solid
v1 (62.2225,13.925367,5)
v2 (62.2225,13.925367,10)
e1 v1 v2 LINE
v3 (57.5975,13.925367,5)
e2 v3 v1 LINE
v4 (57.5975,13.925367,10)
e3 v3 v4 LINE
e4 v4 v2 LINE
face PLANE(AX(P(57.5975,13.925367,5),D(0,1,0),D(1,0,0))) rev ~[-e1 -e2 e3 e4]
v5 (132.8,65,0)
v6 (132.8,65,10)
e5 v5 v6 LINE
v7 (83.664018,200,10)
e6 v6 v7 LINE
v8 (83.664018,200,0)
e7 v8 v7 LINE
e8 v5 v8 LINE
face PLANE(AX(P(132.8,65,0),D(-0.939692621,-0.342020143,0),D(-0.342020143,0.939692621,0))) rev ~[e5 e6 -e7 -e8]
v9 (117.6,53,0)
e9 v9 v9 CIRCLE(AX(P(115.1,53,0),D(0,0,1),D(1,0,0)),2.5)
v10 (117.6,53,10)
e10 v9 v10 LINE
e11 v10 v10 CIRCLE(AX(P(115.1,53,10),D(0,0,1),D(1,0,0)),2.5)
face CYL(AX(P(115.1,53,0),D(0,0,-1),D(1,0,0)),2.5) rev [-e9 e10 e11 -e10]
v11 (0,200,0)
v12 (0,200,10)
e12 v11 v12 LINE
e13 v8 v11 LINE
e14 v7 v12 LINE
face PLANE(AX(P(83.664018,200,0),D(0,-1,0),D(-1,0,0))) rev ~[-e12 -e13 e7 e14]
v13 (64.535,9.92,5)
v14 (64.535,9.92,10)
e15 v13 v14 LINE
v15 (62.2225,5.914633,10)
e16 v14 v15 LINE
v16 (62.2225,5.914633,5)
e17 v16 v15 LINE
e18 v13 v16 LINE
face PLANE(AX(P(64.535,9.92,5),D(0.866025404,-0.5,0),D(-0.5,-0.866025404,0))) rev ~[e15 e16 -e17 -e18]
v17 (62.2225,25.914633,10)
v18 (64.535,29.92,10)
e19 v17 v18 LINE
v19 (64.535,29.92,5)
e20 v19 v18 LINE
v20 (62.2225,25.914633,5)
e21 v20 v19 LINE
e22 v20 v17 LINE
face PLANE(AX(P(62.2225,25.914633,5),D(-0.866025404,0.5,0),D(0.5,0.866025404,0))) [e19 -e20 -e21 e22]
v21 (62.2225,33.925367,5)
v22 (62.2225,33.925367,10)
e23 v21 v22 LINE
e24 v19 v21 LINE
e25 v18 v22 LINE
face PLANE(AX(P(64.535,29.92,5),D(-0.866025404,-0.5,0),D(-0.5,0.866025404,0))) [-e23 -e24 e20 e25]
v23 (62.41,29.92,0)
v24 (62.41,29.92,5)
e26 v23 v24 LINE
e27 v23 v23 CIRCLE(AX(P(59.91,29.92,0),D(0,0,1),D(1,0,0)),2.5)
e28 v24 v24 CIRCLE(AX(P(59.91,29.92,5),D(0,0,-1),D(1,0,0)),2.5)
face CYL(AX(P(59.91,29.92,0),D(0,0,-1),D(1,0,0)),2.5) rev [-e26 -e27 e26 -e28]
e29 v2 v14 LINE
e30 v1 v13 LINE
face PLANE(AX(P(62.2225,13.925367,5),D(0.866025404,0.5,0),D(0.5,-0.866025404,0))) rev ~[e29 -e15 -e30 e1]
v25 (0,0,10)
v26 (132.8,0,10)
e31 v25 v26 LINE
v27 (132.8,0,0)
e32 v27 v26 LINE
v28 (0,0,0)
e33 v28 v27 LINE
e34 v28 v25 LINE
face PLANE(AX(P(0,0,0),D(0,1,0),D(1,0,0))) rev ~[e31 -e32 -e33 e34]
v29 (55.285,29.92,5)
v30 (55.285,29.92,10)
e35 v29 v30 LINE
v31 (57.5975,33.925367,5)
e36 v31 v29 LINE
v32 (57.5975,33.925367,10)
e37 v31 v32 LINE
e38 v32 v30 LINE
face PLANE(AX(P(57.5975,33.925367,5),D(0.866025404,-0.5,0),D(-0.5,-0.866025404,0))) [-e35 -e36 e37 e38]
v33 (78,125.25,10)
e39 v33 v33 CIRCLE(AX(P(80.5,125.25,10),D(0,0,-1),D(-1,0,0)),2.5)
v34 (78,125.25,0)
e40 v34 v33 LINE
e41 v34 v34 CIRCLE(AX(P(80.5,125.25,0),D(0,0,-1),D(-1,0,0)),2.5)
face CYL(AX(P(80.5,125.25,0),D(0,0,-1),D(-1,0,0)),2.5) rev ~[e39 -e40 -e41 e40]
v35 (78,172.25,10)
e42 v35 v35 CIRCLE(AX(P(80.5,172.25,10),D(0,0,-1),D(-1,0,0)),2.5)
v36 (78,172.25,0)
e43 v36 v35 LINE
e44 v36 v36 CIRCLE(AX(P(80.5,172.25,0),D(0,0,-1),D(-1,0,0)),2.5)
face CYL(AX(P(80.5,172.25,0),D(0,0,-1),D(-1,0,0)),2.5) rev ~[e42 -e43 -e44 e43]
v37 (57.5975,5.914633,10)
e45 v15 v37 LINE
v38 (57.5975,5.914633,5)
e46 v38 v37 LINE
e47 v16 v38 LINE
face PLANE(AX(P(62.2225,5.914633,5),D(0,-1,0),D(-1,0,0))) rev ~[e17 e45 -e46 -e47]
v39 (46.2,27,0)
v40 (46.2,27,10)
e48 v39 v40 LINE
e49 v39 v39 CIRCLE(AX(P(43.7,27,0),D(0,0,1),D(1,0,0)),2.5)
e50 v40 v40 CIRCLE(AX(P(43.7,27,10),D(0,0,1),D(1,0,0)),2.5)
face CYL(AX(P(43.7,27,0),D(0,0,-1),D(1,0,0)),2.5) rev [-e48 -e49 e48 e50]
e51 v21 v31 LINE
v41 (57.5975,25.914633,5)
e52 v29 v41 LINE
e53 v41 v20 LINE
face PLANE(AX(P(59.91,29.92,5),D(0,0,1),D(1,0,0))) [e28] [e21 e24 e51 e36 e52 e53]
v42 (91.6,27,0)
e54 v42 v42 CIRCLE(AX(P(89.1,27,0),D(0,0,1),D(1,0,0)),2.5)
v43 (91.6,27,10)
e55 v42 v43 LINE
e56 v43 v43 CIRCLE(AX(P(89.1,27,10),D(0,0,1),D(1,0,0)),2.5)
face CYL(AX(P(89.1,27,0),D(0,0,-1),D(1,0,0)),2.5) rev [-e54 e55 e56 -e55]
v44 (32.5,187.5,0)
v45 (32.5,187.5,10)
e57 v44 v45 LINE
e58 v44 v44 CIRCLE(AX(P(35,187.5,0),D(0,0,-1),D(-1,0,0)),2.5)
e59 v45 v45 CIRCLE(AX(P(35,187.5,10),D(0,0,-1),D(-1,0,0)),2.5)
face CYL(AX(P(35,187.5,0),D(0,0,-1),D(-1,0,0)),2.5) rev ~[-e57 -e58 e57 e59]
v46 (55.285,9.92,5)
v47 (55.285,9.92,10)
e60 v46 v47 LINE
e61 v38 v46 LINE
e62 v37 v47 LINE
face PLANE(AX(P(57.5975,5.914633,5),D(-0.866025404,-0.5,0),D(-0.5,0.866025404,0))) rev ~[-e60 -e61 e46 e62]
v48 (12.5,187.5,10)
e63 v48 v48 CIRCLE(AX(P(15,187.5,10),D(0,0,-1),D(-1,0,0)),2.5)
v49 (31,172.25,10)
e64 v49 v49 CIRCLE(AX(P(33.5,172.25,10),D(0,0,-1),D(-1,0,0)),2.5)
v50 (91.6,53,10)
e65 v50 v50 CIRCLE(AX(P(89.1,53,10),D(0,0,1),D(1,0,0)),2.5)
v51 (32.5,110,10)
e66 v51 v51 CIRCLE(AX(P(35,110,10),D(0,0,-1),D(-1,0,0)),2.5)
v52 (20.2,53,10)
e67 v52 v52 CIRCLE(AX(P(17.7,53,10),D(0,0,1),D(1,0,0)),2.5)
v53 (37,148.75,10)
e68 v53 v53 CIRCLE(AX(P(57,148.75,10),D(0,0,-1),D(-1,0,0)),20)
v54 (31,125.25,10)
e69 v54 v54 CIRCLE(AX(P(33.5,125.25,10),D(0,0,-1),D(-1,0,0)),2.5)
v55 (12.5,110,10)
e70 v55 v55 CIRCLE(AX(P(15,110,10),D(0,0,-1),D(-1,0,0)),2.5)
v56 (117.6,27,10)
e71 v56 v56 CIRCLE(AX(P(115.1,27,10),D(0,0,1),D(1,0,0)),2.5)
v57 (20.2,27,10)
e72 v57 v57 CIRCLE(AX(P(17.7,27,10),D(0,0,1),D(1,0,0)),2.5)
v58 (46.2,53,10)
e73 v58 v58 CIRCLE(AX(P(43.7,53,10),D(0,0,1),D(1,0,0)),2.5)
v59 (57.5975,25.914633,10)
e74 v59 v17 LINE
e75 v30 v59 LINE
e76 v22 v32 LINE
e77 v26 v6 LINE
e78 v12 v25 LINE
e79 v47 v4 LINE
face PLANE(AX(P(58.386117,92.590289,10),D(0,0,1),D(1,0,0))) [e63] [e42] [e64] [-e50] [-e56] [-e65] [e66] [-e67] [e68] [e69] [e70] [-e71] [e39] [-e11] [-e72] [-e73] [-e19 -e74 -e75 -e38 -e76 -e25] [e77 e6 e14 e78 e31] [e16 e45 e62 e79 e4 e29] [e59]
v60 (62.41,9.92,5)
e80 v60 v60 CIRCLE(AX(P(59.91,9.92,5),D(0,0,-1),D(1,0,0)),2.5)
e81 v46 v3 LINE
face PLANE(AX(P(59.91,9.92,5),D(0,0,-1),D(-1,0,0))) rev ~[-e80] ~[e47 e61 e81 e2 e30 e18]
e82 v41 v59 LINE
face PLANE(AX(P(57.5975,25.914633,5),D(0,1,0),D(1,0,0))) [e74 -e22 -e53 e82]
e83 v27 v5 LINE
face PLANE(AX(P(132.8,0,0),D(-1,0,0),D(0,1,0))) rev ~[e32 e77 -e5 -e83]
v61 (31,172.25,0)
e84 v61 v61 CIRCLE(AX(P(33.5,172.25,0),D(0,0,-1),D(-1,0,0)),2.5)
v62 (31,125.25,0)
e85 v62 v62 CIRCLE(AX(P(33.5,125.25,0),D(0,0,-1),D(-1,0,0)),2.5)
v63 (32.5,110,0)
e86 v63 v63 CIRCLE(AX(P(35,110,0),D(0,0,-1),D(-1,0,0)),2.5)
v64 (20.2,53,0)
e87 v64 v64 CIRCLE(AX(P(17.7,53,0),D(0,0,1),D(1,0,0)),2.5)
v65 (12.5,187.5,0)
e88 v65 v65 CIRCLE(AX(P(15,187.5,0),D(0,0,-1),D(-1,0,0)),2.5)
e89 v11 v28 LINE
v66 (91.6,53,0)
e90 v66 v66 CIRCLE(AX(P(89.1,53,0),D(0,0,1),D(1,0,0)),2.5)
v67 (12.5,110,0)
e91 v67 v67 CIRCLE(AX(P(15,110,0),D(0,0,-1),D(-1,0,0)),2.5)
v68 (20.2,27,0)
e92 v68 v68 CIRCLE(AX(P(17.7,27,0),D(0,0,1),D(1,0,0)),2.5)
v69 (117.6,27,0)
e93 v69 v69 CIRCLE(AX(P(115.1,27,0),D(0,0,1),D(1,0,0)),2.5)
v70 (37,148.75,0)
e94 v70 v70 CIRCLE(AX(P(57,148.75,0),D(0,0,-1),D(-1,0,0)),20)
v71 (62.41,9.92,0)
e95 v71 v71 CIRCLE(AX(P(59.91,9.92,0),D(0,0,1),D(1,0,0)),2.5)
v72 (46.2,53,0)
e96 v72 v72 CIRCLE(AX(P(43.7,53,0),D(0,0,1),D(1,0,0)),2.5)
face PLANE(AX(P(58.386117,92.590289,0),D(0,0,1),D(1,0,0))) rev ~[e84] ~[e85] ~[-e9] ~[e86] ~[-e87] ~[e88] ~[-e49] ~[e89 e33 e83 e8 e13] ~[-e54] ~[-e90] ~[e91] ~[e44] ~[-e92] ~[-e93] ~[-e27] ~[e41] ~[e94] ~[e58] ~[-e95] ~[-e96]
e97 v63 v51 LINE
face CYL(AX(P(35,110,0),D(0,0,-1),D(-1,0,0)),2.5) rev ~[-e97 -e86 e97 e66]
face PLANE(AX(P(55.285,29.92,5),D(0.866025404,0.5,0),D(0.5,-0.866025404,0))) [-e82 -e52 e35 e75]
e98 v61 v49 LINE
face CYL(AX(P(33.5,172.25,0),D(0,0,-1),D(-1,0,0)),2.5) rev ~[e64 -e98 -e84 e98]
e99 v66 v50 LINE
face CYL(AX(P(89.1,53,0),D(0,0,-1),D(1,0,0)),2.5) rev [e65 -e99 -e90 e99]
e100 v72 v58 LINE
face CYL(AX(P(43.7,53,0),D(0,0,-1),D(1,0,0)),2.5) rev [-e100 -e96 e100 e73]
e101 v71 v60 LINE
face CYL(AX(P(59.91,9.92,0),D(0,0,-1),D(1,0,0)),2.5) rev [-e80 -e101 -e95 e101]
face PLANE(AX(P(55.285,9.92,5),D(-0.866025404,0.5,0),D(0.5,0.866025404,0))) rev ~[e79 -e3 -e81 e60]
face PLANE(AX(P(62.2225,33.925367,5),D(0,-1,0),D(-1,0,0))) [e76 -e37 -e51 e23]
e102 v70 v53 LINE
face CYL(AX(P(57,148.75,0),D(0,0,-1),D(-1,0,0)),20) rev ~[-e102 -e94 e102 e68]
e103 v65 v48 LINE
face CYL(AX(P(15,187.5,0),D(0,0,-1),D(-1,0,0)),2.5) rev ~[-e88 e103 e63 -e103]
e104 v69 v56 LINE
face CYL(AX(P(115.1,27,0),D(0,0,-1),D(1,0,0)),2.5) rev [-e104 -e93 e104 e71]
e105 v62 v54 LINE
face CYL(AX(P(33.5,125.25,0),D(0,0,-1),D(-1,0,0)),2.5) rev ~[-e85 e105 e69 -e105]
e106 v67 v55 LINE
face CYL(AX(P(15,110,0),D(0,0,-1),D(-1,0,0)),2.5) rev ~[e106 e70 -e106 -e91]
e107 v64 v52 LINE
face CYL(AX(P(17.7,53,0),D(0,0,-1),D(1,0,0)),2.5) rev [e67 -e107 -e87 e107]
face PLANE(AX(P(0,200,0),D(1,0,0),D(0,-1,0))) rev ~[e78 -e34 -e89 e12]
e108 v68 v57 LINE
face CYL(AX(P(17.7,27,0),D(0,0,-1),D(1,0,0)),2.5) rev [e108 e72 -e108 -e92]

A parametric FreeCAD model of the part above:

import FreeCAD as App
import Part
import Sketcher
from FreeCAD import Vector
Q = App.Units.Quantity

doc = App.newDocument("Part")
body = doc.addObject("PartDesign::Body", "Body")

sketch1 = body.newObject("Sketcher::SketchObject", "Sketch")
sketch1.AttachmentSupport = (doc.getObject("XY_Plane"), [""])
sketch1.MapMode = "FlatFace"
sketch1.addGeometry([
    Part.LineSegment(Vector(0, 0, 0), Vector(132.8, 0, 0)),
    Part.LineSegment(Vector(132.8, 0, 0), Vector(132.8, 65, 0)),
    Part.LineSegment(Vector(132.8, 65, 0), Vector(83.664018, 200, 0)),
    Part.LineSegment(Vector(83.664018, 200, 0), Vector(0, 200, 0)),
    Part.LineSegment(Vector(0, 200, 0), Vector(0, 0, 0)),
    Part.Circle(Vector(59.91, 9.92, 0), Vector(0, 0, 1), 2.5),
    Part.Circle(Vector(17.7, 27, 0), Vector(0, 0, 1), 2.5),
    Part.Circle(Vector(43.7, 27, 0), Vector(0, 0, 1), 2.5),
    Part.Circle(Vector(59.91, 29.92, 0), Vector(0, 0, 1), 2.5),
    Part.Circle(Vector(89.1, 27, 0), Vector(0, 0, 1), 2.5),
    Part.Circle(Vector(115.1, 27, 0), Vector(0, 0, 1), 2.5),
    Part.Circle(Vector(17.7, 53, 0), Vector(0, 0, 1), 2.5),
    Part.Circle(Vector(43.7, 53, 0), Vector(0, 0, 1), 2.5),
    Part.Circle(Vector(89.1, 53, 0), Vector(0, 0, 1), 2.5),
    Part.Circle(Vector(115.1, 53, 0), Vector(0, 0, 1), 2.5),
], False)
sketch1.addConstraint([
    Sketcher.Constraint("Coincident", 0, 2, 1, 1),
    Sketcher.Constraint("Coincident", 1, 2, 2, 1),
    Sketcher.Constraint("Coincident", 2, 2, 3, 1),
    Sketcher.Constraint("Coincident", 3, 2, 4, 1),
    Sketcher.Constraint("Coincident", 4, 2, 0, 1),
    Sketcher.Constraint("Horizontal", 0),
    Sketcher.Constraint("Vertical", 1),
    Sketcher.Constraint("Horizontal", 3),
    Sketcher.Constraint("Vertical", 4),
    Sketcher.Constraint("Coincident", 4, 2, -1, 1),
    Sketcher.Constraint("Equal", 5, 6),
    Sketcher.Constraint("Equal", 6, 7),
    Sketcher.Constraint("Equal", 7, 8),
    Sketcher.Constraint("Equal", 8, 9),
    Sketcher.Constraint("Equal", 9, 10),
    Sketcher.Constraint("Equal", 10, 11),
    Sketcher.Constraint("Equal", 11, 12),
    Sketcher.Constraint("Equal", 12, 13),
    Sketcher.Constraint("Equal", 13, 14),
    Sketcher.Constraint("Horizontal", 6, 3, 7, 3),
    Sketcher.Constraint("Horizontal", 7, 3, 9, 3),
    Sketcher.Constraint("Horizontal", 9, 3, 10, 3),
    Sketcher.Constraint("Horizontal", 11, 3, 12, 3),
    Sketcher.Constraint("Horizontal", 12, 3, 13, 3),
    Sketcher.Constraint("Horizontal", 13, 3, 14, 3),
    Sketcher.Constraint("Vertical", 5, 3, 8, 3),
    Sketcher.Constraint("Vertical", 6, 3, 11, 3),
    Sketcher.Constraint("Vertical", 7, 3, 12, 3),
    Sketcher.Constraint("Vertical", 9, 3, 13, 3),
    Sketcher.Constraint("Vertical", 10, 3, 14, 3),
    Sketcher.Constraint("Diameter", 5, 5.0),
    Sketcher.Constraint("DistanceY", 1, 1, 1, 2, 65.0),
    Sketcher.Constraint("DistanceY", 4, 2, 4, 1, 200.0),
    Sketcher.Constraint("Angle", 2, Q("110 deg")),
    Sketcher.Constraint("DistanceX", 0, 1, 0, 2, 132.8),
    Sketcher.Constraint("DistanceY", -1, 1, 6, 3, 27.0),
    Sketcher.Constraint("DistanceY", -1, 1, 11, 3, 53.0),
    Sketcher.Constraint("DistanceX", 6, 3, 7, 3, 26.0),
    Sketcher.Constraint("DistanceY", 5, 3, 8, 3, 20.0),
    Sketcher.Constraint("DistanceX", 9, 3, 10, 3, 26.0),
    Sketcher.Constraint("DistanceX", -1, 1, 6, 3, 17.7),
    Sketcher.Constraint("DistanceX", -1, 1, 9, 3, 89.1),
    Sketcher.Constraint("DistanceX", -1, 1, 5, 3, 59.91),
    Sketcher.Constraint("DistanceY", -1, 1, 5, 3, 9.92),
])
pad1 = body.newObject("PartDesign::Pad", "Pad")
pad1.Profile = sketch1
pad1.Length = 10

sketch2 = body.newObject("Sketcher::SketchObject", "Sketch001")
sketch2.AttachmentSupport = (doc.getObject("XY_Plane"), [""])
sketch2.MapMode = "FlatFace"
sketch2.AttachmentOffset = App.Placement(Vector(0, 0, 5), App.Rotation())
sketch2.addGeometry([
    Part.LineSegment(Vector(64.535, 29.92, 0), Vector(62.2225, 33.925367, 0)),
    Part.LineSegment(Vector(62.2225, 33.925367, 0), Vector(57.5975, 33.925367, 0)),
    Part.LineSegment(Vector(57.5975, 33.925367, 0), Vector(55.285, 29.92, 0)),
    Part.LineSegment(Vector(55.285, 29.92, 0), Vector(57.5975, 25.914633, 0)),
    Part.LineSegment(Vector(57.5975, 25.914633, 0), Vector(62.2225, 25.914633, 0)),
    Part.LineSegment(Vector(62.2225, 25.914633, 0), Vector(64.535, 29.92, 0)),
    Part.LineSegment(Vector(64.535, 9.92, 0), Vector(62.2225, 13.925367, 0)),
    Part.LineSegment(Vector(62.2225, 13.925367, 0), Vector(57.5975, 13.925367, 0)),
    Part.LineSegment(Vector(57.5975, 13.925367, 0), Vector(55.285, 9.92, 0)),
    Part.LineSegment(Vector(55.285, 9.92, 0), Vector(57.5975, 5.914633, 0)),
    Part.LineSegment(Vector(57.5975, 5.914633, 0), Vector(62.2225, 5.914633, 0)),
    Part.LineSegment(Vector(62.2225, 5.914633, 0), Vector(64.535, 9.92, 0)),
], False)
sketch2.addConstraint([
    Sketcher.Constraint("Coincident", 0, 2, 1, 1),
    Sketcher.Constraint("Coincident", 1, 2, 2, 1),
    Sketcher.Constraint("Coincident", 2, 2, 3, 1),
    Sketcher.Constraint("Coincident", 3, 2, 4, 1),
    Sketcher.Constraint("Coincident", 4, 2, 5, 1),
    Sketcher.Constraint("Coincident", 5, 2, 0, 1),
    Sketcher.Constraint("Coincident", 6, 2, 7, 1),
    Sketcher.Constraint("Coincident", 7, 2, 8, 1),
    Sketcher.Constraint("Coincident", 8, 2, 9, 1),
    Sketcher.Constraint("Coincident", 9, 2, 10, 1),
    Sketcher.Constraint("Coincident", 10, 2, 11, 1),
    Sketcher.Constraint("Coincident", 11, 2, 6, 1),
    Sketcher.Constraint("Horizontal", 1),
    Sketcher.Constraint("Horizontal", 4),
    Sketcher.Constraint("Horizontal", 7),
    Sketcher.Constraint("Horizontal", 10),
    Sketcher.Constraint("Parallel", 0, 3),
    Sketcher.Constraint("Parallel", 2, 5),
    Sketcher.Constraint("Parallel", 3, 6),
    Sketcher.Constraint("Parallel", 5, 8),
    Sketcher.Constraint("Parallel", 6, 9),
    Sketcher.Constraint("Parallel", 8, 11),
    Sketcher.Constraint("Horizontal", 2, 2, 5, 2),
    Sketcher.Constraint("Horizontal", 8, 2, 11, 2),
    Sketcher.Constraint("Vertical", 1, 2, 3, 2),
    Sketcher.Constraint("Vertical", 0, 2, 4, 2),
    Sketcher.Constraint("Vertical", 4, 2, 6, 2),
    Sketcher.Constraint("Vertical", 3, 2, 7, 2),
    Sketcher.Constraint("Vertical", 2, 2, 8, 2),
    Sketcher.Constraint("Vertical", 7, 2, 9, 2),
    Sketcher.Constraint("Angle", 0, Q("120 deg")),
    Sketcher.Constraint("DistanceY", 6, 2, 0, 2, 20.0),
    Sketcher.Constraint("DistanceX", 1, 2, 1, 1, 4.625),
    Sketcher.Constraint("DistanceY", -1, 1, 2, 2, 29.92),
    Sketcher.Constraint("DistanceX", 2, 2, 5, 2, 9.25),
    Sketcher.Constraint("DistanceX", -1, 1, 2, 2, 55.285),
])
pocket1 = body.newObject("PartDesign::Pocket", "Pocket")
pocket1.Profile = sketch2
pocket1.Length = 5
pocket1.Reversed = True

sketch3 = body.newObject("Sketcher::SketchObject", "Sketch002")
sketch3.AttachmentSupport = (doc.getObject("XY_Plane"), [""])
sketch3.MapMode = "FlatFace"
sketch3.addGeometry([
    Part.Circle(Vector(15, 187.5, 0), Vector(0, 0, 1), 2.5),
    Part.Circle(Vector(35, 187.5, 0), Vector(0, 0, 1), 2.5),
    Part.Circle(Vector(35, 110, 0), Vector(0, 0, 1), 2.5),
    Part.Circle(Vector(15, 110, 0), Vector(0, 0, 1), 2.5),
    Part.Circle(Vector(57, 148.75, 0), Vector(0, 0, 1), 20),
    Part.Circle(Vector(33.5, 172.25, 0), Vector(0, 0, 1), 2.5),
    Part.Circle(Vector(33.5, 125.25, 0), Vector(0, 0, 1), 2.5),
    Part.Circle(Vector(80.5, 125.25, 0), Vector(0, 0, 1), 2.5),
    Part.Circle(Vector(80.5, 172.25, 0), Vector(0, 0, 1), 2.5),
], False)
sketch3.addConstraint([
    Sketcher.Constraint("Equal", 0, 1),
    Sketcher.Constraint("Equal", 1, 2),
    Sketcher.Constraint("Equal", 2, 3),
    Sketcher.Constraint("Equal", 3, 5),
    Sketcher.Constraint("Equal", 5, 6),
    Sketcher.Constraint("Equal", 6, 7),
    Sketcher.Constraint("Equal", 7, 8),
    Sketcher.Constraint("Horizontal", 0, 3, 1, 3),
    Sketcher.Constraint("Horizontal", 2, 3, 3, 3),
    Sketcher.Constraint("Horizontal", 6, 3, 7, 3),
    Sketcher.Constraint("Horizontal", 5, 3, 8, 3),
    Sketcher.Constraint("Vertical", 1, 3, 2, 3),
    Sketcher.Constraint("Vertical", 0, 3, 3, 3),
    Sketcher.Constraint("Vertical", 5, 3, 6, 3),
    Sketcher.Constraint("Vertical", 7, 3, 8, 3),
    Sketcher.Constraint("Diameter", 0, 5.0),
    Sketcher.Constraint("Diameter", 4, 40.0),
    Sketcher.Constraint("DistanceX", -1, 1, 0, 3, 15.0),
    Sketcher.Constraint("DistanceX", -1, 1, 1, 3, 35.0),
    Sketcher.Constraint("DistanceY", -1, 1, 2, 3, 110.0),
    Sketcher.Constraint("DistanceX", -1, 1, 4, 3, 57.0),
    Sketcher.Constraint("DistanceY", 6, 3, 5, 3, 47.0),
    Sketcher.Constraint("DistanceX", 6, 3, 7, 3, 47.0),
    Sketcher.Constraint("DistanceY", -1, 1, 0, 3, 187.5),
    Sketcher.Constraint("DistanceX", -1, 1, 5, 3, 33.5),
    Sketcher.Constraint("DistanceY", 4, 3, 5, 3, 23.5),
    Sketcher.Constraint("DistanceY", -1, 1, 4, 3, 148.75),
])
pocket2 = body.newObject("PartDesign::Pocket", "Pocket001")
pocket2.Profile = sketch3
pocket2.Type = "ThroughAll"
pocket2.Reversed = True

doc.recompute()
